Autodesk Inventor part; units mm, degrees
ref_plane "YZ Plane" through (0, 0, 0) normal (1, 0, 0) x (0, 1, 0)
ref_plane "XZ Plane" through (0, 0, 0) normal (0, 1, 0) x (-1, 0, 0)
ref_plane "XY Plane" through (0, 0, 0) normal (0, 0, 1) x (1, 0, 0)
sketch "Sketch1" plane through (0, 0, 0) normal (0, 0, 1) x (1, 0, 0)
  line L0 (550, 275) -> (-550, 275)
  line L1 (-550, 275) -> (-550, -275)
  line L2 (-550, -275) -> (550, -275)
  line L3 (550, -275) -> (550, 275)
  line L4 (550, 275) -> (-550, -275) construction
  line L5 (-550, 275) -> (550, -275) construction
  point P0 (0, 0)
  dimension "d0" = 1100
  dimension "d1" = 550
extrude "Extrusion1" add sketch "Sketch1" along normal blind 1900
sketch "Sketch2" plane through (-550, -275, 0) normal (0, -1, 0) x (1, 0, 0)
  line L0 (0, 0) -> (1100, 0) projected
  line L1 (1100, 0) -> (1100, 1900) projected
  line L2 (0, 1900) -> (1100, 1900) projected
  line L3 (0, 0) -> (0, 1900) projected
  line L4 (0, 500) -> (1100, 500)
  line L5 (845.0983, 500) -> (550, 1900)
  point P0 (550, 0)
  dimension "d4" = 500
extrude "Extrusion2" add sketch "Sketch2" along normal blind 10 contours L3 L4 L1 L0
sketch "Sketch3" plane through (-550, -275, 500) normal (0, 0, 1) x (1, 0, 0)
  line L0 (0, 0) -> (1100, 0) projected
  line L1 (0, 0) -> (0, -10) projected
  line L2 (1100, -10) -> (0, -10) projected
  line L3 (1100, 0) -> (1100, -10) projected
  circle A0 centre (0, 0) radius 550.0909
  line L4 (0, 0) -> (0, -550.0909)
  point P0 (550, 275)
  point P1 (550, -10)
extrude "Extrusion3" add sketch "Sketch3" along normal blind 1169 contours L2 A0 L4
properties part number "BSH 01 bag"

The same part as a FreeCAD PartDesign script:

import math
import FreeCAD as App
import Part
import Sketcher


def add_polygon(sketch, points):
    """Adds a closed chain of lines whose ends are joined by coincident constraints."""
    first, n = sketch.GeometryCount, len(points)
    for a, b in zip(points, points[1:] + points[:1]):
        sketch.addGeometry(Part.LineSegment(App.Vector(*a, 0), App.Vector(*b, 0)), False)
    for i in range(n):
        sketch.addConstraint(Sketcher.Constraint("Coincident", first + i, 2, first + (i + 1) % n, 1))

doc = App.newDocument("Part")
body = doc.addObject("PartDesign::Body", "Body")
body.AllowCompound = True

# Sketch on XY plane
sketch1 = body.newObject("Sketcher::SketchObject", "Sketch")
sketch1.AttachmentSupport = (doc.getObject("XY_Plane"), [""])
sketch1.MapMode = "FlatFace"
add_polygon(sketch1, [(550, -275), (550, 275), (-550, 275), (-550, -275)])  # lines 0-3
sketch1.addConstraint([
    Sketcher.Constraint("Vertical", 0),
    Sketcher.Constraint("Horizontal", 1),
    Sketcher.Constraint("Vertical", 2),
    Sketcher.Constraint("Horizontal", 3),
    Sketcher.Constraint("Symmetric", 0, 2, 2, 2, -1, 1),
    Sketcher.Constraint("DistanceX", 1, 2, 1, 1, 1100.0),
    Sketcher.Constraint("DistanceY", 0, 1, 0, 2, 550.0),
])
pad1 = body.newObject("PartDesign::Pad", "Pad")
pad1.Profile = sketch1
pad1.Length = 1900

# Sketch on XZ plane
sketch2 = body.newObject("Sketcher::SketchObject", "Sketch001")
sketch2.AttachmentSupport = (doc.getObject("XZ_Plane"), [""])
sketch2.MapMode = "FlatFace"
sketch2.AttachmentOffset = App.Placement(App.Vector(0, 0, 275), App.Rotation())
add_polygon(sketch2, [(-550, 500), (-550, 0), (550, 0), (550, 500)])  # lines 0-3
sketch2.addConstraint([
    Sketcher.Constraint("Vertical", 0),
    Sketcher.Constraint("Horizontal", 1),
    Sketcher.Constraint("Vertical", 2),
    Sketcher.Constraint("Horizontal", 3),
    Sketcher.Constraint("Symmetric", 0, 2, 1, 2, -1, 1),
    Sketcher.Constraint("DistanceY", 0, 2, 0, 1, 500.0),
    Sketcher.Constraint("DistanceX", 1, 1, 1, 2, 1100.0),
])
pad2 = body.newObject("PartDesign::Pad", "Pad001")
pad2.Profile = sketch2
pad2.Length = 10

# Sketch on XY plane
sketch3 = body.newObject("Sketcher::SketchObject", "Sketch002")
sketch3.AttachmentSupport = (doc.getObject("XY_Plane"), [""])
sketch3.MapMode = "FlatFace"
sketch3.AttachmentOffset = App.Placement(App.Vector(0, 0, 500), App.Rotation())
sketch3.addGeometry([
    Part.LineSegment(App.Vector(0, -285, 0), App.Vector(-550, -285, 0)),
    Part.LineSegment(App.Vector(-550, -285, 0), App.Vector(-550, -825, 0)),
    Part.ArcOfCircle(Part.Circle(App.Vector(-550, -275, 0), App.Vector(0, 0, 1), 550), math.radians(-90), math.radians(-1)),
], False)
sketch3.addConstraint([
    Sketcher.Constraint("Coincident", 0, 2, 1, 1),
    Sketcher.Constraint("Coincident", 1, 2, 2, 1),
    Sketcher.Constraint("Coincident", 2, 2, 0, 1),
    Sketcher.Constraint("Horizontal", 0),
    Sketcher.Constraint("Vertical", 1),
    Sketcher.Constraint("PointOnObject", 2, 2, -2),
    Sketcher.Constraint("Vertical", 2, 3, 0, 2),
    Sketcher.Constraint("DistanceX", 0, 2, 0, 1, 550.0),
    Sketcher.Constraint("DistanceY", 2, 3, -1, 1, 275.0),
    Sketcher.Constraint("DistanceY", 0, 2, -1, 1, 285.0),
])
pad3 = body.newObject("PartDesign::Pad", "Pad002")
pad3.Profile = sketch3
pad3.Length = 1169

doc.recompute()
